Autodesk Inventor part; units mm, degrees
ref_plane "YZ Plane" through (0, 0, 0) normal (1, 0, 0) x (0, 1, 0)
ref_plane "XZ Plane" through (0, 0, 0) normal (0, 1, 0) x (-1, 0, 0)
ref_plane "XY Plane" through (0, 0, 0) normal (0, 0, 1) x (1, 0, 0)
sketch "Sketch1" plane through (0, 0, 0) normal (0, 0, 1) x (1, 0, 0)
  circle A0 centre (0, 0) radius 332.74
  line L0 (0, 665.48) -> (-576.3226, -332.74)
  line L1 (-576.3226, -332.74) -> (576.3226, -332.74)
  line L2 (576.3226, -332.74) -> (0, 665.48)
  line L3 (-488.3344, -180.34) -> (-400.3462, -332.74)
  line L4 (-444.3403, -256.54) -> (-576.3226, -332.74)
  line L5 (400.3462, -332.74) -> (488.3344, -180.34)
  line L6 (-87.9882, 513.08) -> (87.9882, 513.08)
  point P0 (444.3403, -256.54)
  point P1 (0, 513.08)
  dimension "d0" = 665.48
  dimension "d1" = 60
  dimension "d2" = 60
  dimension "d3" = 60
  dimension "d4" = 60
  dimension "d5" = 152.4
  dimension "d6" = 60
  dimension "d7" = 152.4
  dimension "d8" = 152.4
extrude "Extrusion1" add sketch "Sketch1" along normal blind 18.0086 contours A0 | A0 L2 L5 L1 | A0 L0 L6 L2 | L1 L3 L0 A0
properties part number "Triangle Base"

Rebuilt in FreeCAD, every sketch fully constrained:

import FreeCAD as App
import Part
import Sketcher

V = App.Vector
Q = App.Units.Quantity

doc = App.newDocument("Part")
body = doc.addObject("PartDesign::Body", "Body")

sketch1 = body.newObject("Sketcher::SketchObject", "Sketch")
sketch1.AttachmentSupport = (doc.getObject("XY_Plane"), [""])
sketch1.MapMode = "FlatFace"
sketch1.addGeometry(Part.LineSegment(V(400.3462, -332.74, 0), V(488.3344, -180.34, 0)), False)
sketch1.addGeometry(Part.LineSegment(V(488.3344, -180.34, 0), V(87.9882, 513.08, 0)), False)
sketch1.addGeometry(Part.LineSegment(V(87.9882, 513.08, 0), V(-87.9882, 513.08, 0)), False)
sketch1.addGeometry(Part.LineSegment(V(-87.9882, 513.08, 0), V(-488.3344, -180.34, 0)), False)
sketch1.addGeometry(Part.LineSegment(V(-488.3344, -180.34, 0), V(-400.3462, -332.74, 0)), False)
sketch1.addGeometry(Part.LineSegment(V(-400.3462, -332.74, 0), V(400.3462, -332.74, 0)), False)
sketch1.addConstraint(Sketcher.Constraint("Coincident", 0, 2, 1, 1))
sketch1.addConstraint(Sketcher.Constraint("Coincident", 1, 2, 2, 1))
sketch1.addConstraint(Sketcher.Constraint("Coincident", 2, 2, 3, 1))
sketch1.addConstraint(Sketcher.Constraint("Coincident", 3, 2, 4, 1))
sketch1.addConstraint(Sketcher.Constraint("Coincident", 4, 2, 5, 1))
sketch1.addConstraint(Sketcher.Constraint("Coincident", 5, 2, 0, 1))
sketch1.addConstraint(Sketcher.Constraint("Horizontal", 2))
sketch1.addConstraint(Sketcher.Constraint("Horizontal", 5))
sketch1.addConstraint(Sketcher.Constraint("Symmetric", 0, 2, 3, 2, -2))
sketch1.addConstraint(Sketcher.Constraint("Parallel", 0, 3))
sketch1.addConstraint(Sketcher.Constraint("Parallel", 1, 4))
sketch1.addConstraint(Sketcher.Constraint("Equal", 1, 3))
sketch1.addConstraint(Sketcher.Constraint("Angle", 0, Q("60 deg")))
sketch1.addConstraint(Sketcher.Constraint("DistanceY", 4, 2, 3, 2, Q("6 in")))
sketch1.addConstraint(Sketcher.Constraint("DistanceY", 0, 2, -1, 1, Q("7.1 in")))
sketch1.addConstraint(Sketcher.Constraint("DistanceY", -1, 1, 1, 2, Q("20.2 in")))
sketch1.addConstraint(Sketcher.Constraint("DistanceX", 2, 2, 2, 1, Q("6.9282 in")))
pad1 = body.newObject("PartDesign::Pad", "Pad")
pad1.Profile = sketch1
pad1.Length = Q("0.709 in")

doc.recompute()
